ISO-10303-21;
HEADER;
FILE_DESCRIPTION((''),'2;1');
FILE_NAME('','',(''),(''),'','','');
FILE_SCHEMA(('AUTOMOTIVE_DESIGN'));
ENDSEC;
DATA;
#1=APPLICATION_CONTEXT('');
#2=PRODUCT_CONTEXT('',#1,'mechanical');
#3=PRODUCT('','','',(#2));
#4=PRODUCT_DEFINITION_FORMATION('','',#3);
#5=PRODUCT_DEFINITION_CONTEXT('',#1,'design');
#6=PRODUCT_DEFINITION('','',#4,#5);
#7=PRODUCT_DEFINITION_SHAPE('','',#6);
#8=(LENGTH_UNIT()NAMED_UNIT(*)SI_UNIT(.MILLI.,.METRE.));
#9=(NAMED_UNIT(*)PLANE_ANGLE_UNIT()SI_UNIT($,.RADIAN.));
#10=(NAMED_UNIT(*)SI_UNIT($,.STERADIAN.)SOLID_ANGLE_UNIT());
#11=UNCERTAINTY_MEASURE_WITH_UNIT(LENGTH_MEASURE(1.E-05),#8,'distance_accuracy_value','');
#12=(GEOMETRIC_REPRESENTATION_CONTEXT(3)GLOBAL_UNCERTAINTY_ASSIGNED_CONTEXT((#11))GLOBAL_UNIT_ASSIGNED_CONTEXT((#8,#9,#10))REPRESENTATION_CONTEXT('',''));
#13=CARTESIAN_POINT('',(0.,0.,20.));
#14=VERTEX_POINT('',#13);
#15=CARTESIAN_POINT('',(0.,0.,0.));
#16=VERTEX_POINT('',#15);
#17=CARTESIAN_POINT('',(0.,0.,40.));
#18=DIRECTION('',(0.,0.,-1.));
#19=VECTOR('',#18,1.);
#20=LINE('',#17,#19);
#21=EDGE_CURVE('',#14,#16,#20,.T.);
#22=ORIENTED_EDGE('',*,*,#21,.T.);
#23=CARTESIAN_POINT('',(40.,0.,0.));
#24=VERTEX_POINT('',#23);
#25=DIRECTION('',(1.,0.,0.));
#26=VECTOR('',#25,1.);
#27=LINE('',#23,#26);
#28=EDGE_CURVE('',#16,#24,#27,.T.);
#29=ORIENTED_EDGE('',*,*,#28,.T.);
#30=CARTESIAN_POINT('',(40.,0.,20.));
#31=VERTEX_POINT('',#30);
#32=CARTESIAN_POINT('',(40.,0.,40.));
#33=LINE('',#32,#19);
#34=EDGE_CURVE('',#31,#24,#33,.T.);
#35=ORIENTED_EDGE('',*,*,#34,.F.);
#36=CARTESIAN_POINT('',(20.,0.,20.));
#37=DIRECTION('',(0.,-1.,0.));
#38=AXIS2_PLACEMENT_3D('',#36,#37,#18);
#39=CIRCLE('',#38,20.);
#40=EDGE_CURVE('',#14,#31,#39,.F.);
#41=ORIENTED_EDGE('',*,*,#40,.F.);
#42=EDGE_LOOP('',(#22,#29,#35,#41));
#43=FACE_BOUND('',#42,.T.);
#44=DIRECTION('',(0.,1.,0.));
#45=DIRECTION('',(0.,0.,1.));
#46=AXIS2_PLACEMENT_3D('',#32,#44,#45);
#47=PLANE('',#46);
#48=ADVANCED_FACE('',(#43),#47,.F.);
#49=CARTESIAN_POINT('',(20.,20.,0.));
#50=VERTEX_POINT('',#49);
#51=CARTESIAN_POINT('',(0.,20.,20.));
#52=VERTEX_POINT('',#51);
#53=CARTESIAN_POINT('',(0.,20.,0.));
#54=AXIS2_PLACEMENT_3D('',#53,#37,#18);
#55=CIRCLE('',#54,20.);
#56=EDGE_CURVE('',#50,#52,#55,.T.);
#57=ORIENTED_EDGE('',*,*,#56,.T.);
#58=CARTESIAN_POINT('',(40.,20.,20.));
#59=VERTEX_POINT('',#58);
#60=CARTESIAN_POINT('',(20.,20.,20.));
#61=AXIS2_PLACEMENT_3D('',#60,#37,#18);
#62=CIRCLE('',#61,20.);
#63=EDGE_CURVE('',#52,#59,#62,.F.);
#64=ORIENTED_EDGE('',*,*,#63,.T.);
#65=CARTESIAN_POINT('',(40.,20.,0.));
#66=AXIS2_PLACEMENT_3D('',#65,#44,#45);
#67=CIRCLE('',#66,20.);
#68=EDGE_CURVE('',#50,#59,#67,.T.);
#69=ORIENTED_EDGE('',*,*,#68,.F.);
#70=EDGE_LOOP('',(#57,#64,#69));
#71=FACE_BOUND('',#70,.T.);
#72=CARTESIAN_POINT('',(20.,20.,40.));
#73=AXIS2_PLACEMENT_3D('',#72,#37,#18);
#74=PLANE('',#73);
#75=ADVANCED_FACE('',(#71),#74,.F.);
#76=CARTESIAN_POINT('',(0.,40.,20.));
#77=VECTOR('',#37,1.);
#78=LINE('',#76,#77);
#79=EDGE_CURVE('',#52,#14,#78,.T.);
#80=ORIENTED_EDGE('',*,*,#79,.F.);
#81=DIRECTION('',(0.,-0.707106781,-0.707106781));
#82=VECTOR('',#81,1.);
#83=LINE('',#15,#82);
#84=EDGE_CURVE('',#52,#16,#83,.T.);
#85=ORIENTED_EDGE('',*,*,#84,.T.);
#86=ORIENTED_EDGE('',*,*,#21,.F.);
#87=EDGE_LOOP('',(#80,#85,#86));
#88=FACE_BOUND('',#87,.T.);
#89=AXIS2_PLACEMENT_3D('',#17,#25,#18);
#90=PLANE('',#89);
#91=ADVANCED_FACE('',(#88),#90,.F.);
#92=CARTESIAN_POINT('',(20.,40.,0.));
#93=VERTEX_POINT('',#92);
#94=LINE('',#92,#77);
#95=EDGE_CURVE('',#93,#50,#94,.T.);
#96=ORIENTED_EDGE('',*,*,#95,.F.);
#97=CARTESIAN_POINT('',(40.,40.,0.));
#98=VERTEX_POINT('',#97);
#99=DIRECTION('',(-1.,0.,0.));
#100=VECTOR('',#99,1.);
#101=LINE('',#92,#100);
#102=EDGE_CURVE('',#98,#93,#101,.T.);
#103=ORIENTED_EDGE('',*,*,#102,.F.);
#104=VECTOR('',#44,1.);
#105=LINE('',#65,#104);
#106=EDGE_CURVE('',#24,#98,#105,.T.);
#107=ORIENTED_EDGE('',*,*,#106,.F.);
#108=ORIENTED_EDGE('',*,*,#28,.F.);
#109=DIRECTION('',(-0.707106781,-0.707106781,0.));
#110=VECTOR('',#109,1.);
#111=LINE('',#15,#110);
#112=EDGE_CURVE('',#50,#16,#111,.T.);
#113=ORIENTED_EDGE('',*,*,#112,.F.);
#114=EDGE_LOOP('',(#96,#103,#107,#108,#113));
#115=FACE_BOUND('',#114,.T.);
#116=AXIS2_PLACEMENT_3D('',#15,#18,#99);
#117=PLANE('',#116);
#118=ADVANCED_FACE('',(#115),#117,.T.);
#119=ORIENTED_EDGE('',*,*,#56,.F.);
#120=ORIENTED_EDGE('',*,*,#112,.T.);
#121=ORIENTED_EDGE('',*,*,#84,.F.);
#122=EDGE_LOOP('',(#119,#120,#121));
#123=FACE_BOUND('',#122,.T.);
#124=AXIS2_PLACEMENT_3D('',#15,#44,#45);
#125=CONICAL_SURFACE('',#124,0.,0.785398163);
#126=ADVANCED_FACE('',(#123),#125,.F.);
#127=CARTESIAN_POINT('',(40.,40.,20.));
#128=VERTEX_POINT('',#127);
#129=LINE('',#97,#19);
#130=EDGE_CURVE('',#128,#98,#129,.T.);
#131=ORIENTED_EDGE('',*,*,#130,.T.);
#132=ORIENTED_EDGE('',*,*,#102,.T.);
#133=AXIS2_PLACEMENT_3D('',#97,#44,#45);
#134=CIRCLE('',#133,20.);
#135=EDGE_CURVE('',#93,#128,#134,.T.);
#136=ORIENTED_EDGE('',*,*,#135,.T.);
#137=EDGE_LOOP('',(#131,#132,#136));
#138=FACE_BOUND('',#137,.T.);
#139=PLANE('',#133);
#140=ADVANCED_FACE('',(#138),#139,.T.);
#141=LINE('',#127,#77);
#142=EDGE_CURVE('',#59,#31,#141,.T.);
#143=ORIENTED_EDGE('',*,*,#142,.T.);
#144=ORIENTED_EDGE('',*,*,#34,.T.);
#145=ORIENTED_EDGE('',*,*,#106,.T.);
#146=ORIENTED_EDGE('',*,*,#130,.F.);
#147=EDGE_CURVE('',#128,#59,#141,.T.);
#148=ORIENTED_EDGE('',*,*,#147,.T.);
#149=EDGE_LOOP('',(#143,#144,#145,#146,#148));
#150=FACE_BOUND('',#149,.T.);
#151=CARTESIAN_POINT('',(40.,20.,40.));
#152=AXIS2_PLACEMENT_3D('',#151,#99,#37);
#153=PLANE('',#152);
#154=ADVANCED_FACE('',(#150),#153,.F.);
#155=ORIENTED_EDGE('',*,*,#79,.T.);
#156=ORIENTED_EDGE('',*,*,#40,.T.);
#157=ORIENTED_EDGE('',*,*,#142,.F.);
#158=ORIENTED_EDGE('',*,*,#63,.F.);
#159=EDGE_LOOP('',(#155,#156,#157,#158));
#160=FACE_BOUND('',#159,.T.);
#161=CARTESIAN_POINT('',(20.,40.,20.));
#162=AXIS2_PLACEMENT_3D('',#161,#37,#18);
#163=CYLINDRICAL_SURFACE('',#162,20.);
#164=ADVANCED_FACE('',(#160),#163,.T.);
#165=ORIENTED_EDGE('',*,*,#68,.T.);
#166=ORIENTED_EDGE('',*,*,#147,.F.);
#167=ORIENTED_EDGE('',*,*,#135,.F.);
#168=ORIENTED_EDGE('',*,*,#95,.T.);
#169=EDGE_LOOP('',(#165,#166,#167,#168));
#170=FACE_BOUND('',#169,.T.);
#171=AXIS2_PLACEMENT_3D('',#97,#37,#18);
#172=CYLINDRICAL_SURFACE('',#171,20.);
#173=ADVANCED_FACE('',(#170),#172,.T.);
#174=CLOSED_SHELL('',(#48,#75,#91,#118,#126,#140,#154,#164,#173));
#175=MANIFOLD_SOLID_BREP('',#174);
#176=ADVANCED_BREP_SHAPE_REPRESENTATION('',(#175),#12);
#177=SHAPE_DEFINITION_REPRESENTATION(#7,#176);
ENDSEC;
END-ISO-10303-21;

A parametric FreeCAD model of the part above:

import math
import FreeCAD as App
import Part
import Sketcher

V = App.Vector

doc = App.newDocument("Part")
body = doc.addObject("PartDesign::Body", "Body")

# Sketch on XY plane
sketch1 = doc.addObject("Sketcher::SketchObject", "Sketch")
body.addObject(sketch1)
sketch1.AttachmentSupport = (doc.XY_Plane, [""])
sketch1.MapMode = "FlatFace"
sketch1.addGeometry([
    Part.LineSegment(V(0, 40, 0), V(0, 0, 0)),  # 0
    Part.LineSegment(V(0, 0, 0), V(40, 0, 0)),  # 1
    Part.LineSegment(V(40, 0, 0), V(40, 20, 0)),  # 2
    Part.LineSegment(V(40, 20, 0), V(20, 20, 0)),  # 3
    Part.LineSegment(V(20, 20, 0), V(20, 40, 0)),  # 4
    Part.LineSegment(V(20, 40, 0), V(0, 40, 0)),  # 5
], False)
sketch1.addConstraint([
    Sketcher.Constraint("Coincident", 0, 2, 1, 1),
    Sketcher.Constraint("Coincident", 1, 2, 2, 1),
    Sketcher.Constraint("Coincident", 2, 2, 3, 1),
    Sketcher.Constraint("Coincident", 3, 2, 4, 1),
    Sketcher.Constraint("Coincident", 4, 2, 5, 1),
    Sketcher.Constraint("Coincident", 5, 2, 0, 1),
    Sketcher.Constraint("Vertical", 0),
    Sketcher.Constraint("Horizontal", 1),
    Sketcher.Constraint("Vertical", 2),
    Sketcher.Constraint("Horizontal", 3),
    Sketcher.Constraint("Vertical", 4),
    Sketcher.Constraint("Horizontal", 5),
    Sketcher.Constraint("Coincident", 0, 2, -1, 1),
    Sketcher.Constraint("Equal", 3, 5),
    Sketcher.Constraint("Equal", 1, 0),
    Sketcher.Constraint("Equal", 5, 2),
    Sketcher.Constraint("DistanceX", 1, 1, 1, 2, 40.0),
])
pad1 = doc.addObject("PartDesign::Pad", "Pad")
body.addObject(pad1)
pad1.Profile = sketch1
pad1.Length = 40

# Sketch on XZ plane
sketch2 = doc.addObject("Sketcher::SketchObject", "Sketch001")
body.addObject(sketch2)
sketch2.AttachmentSupport = (doc.XZ_Plane, [""])
sketch2.MapMode = "FlatFace"
sketch2.addGeometry([
    Part.LineSegment(V(0, 40, 0), V(0, 20, 0)),  # 0
    Part.ArcOfCircle(Part.Circle(V(20, 20, 0), V(0, 0, 1), 20), math.radians(90), math.radians(180)),  # 1
    Part.LineSegment(V(20, 40, 0), V(0, 40, 0)),  # 2
    Part.LineSegment(V(40, 40, 0), V(20, 40, 0)),  # 3
    Part.ArcOfCircle(Part.Circle(V(20, 20, 0), V(0, 0, 1), 20), math.radians(0), math.radians(90)),  # 4
    Part.LineSegment(V(40, 20, 0), V(40, 40, 0)),  # 5
], False)
sketch2.addConstraint([
    Sketcher.Constraint("Tangent", 0, 2, 1, 2),
    Sketcher.Constraint("Tangent", 1, 1, 2, 1),
    Sketcher.Constraint("Coincident", 2, 2, 0, 1),
    Sketcher.Constraint("Tangent", 3, 2, 4, 2),
    Sketcher.Constraint("Tangent", 4, 1, 5, 1),
    Sketcher.Constraint("Coincident", 5, 2, 3, 1),
    Sketcher.Constraint("Vertical", 0),
    Sketcher.Constraint("Horizontal", 2),
    Sketcher.Constraint("Horizontal", 3),
    Sketcher.Constraint("Vertical", 5),
    Sketcher.Constraint("Coincident", 4, 3, 1, 3),
    Sketcher.Constraint("Equal", 1, 4),
    Sketcher.Constraint("PointOnObject", 0, 2, -2),
    Sketcher.Constraint("Radius", 1, 20.0),
    Sketcher.Constraint("DistanceY", -1, 1, 1, 3, 20.0),
])
pocket1 = doc.addObject("PartDesign::Pocket", "Pocket")
body.addObject(pocket1)
pocket1.Profile = sketch2
pocket1.Length = 40

# Sketch on XZ plane
sketch3 = doc.addObject("Sketcher::SketchObject", "Sketch002")
body.addObject(sketch3)
sketch3.AttachmentSupport = (doc.XZ_Plane, [""])
sketch3.MapMode = "FlatFace"
sketch3.AttachmentOffset = App.Placement(V(0, 0, -20), App.Rotation())
sketch3.addGeometry([
    Part.LineSegment(V(0, 0, 0), V(0, 20, 0)),
    Part.LineSegment(V(0, 20, 0), V(20, 20, 0)),
    Part.LineSegment(V(20, 20, 0), V(20, 0, 0)),
    Part.LineSegment(V(20, 0, 0), V(0, 0, 0)),
], False)
sketch3.addConstraint([
    Sketcher.Constraint("Coincident", 0, 2, 1, 1),
    Sketcher.Constraint("Coincident", 1, 2, 2, 1),
    Sketcher.Constraint("Coincident", 2, 2, 3, 1),
    Sketcher.Constraint("Coincident", 3, 2, 0, 1),
    Sketcher.Constraint("Vertical", 0),
    Sketcher.Constraint("Horizontal", 1),
    Sketcher.Constraint("Vertical", 2),
    Sketcher.Constraint("Horizontal", 3),
    Sketcher.Constraint("Coincident", 3, 2, -1, 1),
    Sketcher.Constraint("Equal", 3, 0),
    Sketcher.Constraint("DistanceX", 1, 1, 1, 2, 20.0),
])
pocket2 = doc.addObject("PartDesign::Pocket", "Pocket001")
body.addObject(pocket2)
pocket2.Profile = sketch3
pocket2.Length = 20

# Sketch on XZ plane
sketch4 = doc.addObject("Sketcher::SketchObject", "Sketch003")
body.addObject(sketch4)
sketch4.AttachmentSupport = (doc.XZ_Plane, [""])
sketch4.MapMode = "FlatFace"
sketch4.AttachmentOffset = App.Placement(V(0, 0, -20), App.Rotation())
sketch4.addGeometry([
    Part.LineSegment(V(40, 0, 0), V(20, 0, 0)),
    Part.ArcOfCircle(Part.Circle(V(40, 0, 0), V(0, 0, 1), 20), math.radians(90), math.radians(180)),
    Part.LineSegment(V(40, 20, 0), V(40, 0, 0)),
], False)
sketch4.addConstraint([
    Sketcher.Constraint("Coincident", 0, 2, 1, 2),
    Sketcher.Constraint("Coincident", 1, 1, 2, 1),
    Sketcher.Constraint("Coincident", 2, 2, 0, 1),
    Sketcher.Constraint("Horizontal", 0),
    Sketcher.Constraint("Vertical", 2),
    Sketcher.Constraint("Coincident", 2, 2, 1, 3),
    Sketcher.Constraint("PointOnObject", 1, 3, -1),
    Sketcher.Constraint("Radius", 1, 20.0),
    Sketcher.Constraint("DistanceX", -1, 1, 1, 3, 40.0),
])
pad2 = doc.addObject("PartDesign::Pad", "Pad001")
body.addObject(pad2)
pad2.Profile = sketch4
pad2.Length = 20
pad2.Reversed = True

# Sketch on XZ plane
sketch5 = doc.addObject("Sketcher::SketchObject", "Sketch004")
body.addObject(sketch5)
sketch5.AttachmentSupport = (doc.XZ_Plane, [""])
sketch5.MapMode = "FlatFace"
sketch5.AttachmentOffset = App.Placement(V(0, 0, -40), App.Rotation())
sketch5.addGeometry([
    Part.ArcOfCircle(Part.Circle(V(20, 20, 0), V(0, 0, 1), 20), math.radians(90), math.radians(180)),
    Part.LineSegment(V(20, 40, 0), V(20, 20, 0)),
    Part.LineSegment(V(20, 20, 0), V(0, 20, 0)),
], False)
sketch5.addConstraint([
    Sketcher.Constraint("Coincident", 0, 1, 1, 1),
    Sketcher.Constraint("Coincident", 1, 2, 2, 1),
    Sketcher.Constraint("Coincident", 2, 2, 0, 2),
    Sketcher.Constraint("Vertical", 1),
    Sketcher.Constraint("Horizontal", 2),
    Sketcher.Constraint("Coincident", 1, 2, 0, 3),
    Sketcher.Constraint("PointOnObject", 2, 2, -2),
    Sketcher.Constraint("Radius", 0, 20.0),
    Sketcher.Constraint("DistanceY", -1, 1, 0, 3, 20.0),
])
pocket3 = doc.addObject("PartDesign::Pocket", "Pocket002")
body.addObject(pocket3)
pocket3.Profile = sketch5
pocket3.Length = 20
pocket3.Reversed = True

# Sketch on YZ plane
sketch6 = doc.addObject("Sketcher::SketchObject", "Sketch005")
body.addObject(sketch6)
sketch6.AttachmentSupport = (doc.YZ_Plane, [""])
sketch6.MapMode = "FlatFace"
sketch6.addGeometry([
    Part.LineSegment(V(0, 0, 0), V(20, 20, 0)),
    Part.LineSegment(V(20, 20, 0), V(20, 0, 0)),
    Part.LineSegment(V(20, 0, 0), V(0, 0, 0)),
], False)
sketch6.addConstraint([
    Sketcher.Constraint("Coincident", 0, 2, 1, 1),
    Sketcher.Constraint("Coincident", 1, 2, 2, 1),
    Sketcher.Constraint("Coincident", 2, 2, 0, 1),
    Sketcher.Constraint("Vertical", 1),
    Sketcher.Constraint("Horizontal", 2),
    Sketcher.Constraint("Coincident", 2, 2, -1, 1),
    Sketcher.Constraint("Equal", 2, 1),
    Sketcher.Constraint("DistanceX", 2, 2, 2, 1, 20.0),
])
groove = doc.addObject("PartDesign::Groove", "Groove")
body.addObject(groove)
groove.Profile = sketch6
groove.ReferenceAxis = (sketch6, ["H_Axis"])
groove.Angle = 360

doc.recompute()
